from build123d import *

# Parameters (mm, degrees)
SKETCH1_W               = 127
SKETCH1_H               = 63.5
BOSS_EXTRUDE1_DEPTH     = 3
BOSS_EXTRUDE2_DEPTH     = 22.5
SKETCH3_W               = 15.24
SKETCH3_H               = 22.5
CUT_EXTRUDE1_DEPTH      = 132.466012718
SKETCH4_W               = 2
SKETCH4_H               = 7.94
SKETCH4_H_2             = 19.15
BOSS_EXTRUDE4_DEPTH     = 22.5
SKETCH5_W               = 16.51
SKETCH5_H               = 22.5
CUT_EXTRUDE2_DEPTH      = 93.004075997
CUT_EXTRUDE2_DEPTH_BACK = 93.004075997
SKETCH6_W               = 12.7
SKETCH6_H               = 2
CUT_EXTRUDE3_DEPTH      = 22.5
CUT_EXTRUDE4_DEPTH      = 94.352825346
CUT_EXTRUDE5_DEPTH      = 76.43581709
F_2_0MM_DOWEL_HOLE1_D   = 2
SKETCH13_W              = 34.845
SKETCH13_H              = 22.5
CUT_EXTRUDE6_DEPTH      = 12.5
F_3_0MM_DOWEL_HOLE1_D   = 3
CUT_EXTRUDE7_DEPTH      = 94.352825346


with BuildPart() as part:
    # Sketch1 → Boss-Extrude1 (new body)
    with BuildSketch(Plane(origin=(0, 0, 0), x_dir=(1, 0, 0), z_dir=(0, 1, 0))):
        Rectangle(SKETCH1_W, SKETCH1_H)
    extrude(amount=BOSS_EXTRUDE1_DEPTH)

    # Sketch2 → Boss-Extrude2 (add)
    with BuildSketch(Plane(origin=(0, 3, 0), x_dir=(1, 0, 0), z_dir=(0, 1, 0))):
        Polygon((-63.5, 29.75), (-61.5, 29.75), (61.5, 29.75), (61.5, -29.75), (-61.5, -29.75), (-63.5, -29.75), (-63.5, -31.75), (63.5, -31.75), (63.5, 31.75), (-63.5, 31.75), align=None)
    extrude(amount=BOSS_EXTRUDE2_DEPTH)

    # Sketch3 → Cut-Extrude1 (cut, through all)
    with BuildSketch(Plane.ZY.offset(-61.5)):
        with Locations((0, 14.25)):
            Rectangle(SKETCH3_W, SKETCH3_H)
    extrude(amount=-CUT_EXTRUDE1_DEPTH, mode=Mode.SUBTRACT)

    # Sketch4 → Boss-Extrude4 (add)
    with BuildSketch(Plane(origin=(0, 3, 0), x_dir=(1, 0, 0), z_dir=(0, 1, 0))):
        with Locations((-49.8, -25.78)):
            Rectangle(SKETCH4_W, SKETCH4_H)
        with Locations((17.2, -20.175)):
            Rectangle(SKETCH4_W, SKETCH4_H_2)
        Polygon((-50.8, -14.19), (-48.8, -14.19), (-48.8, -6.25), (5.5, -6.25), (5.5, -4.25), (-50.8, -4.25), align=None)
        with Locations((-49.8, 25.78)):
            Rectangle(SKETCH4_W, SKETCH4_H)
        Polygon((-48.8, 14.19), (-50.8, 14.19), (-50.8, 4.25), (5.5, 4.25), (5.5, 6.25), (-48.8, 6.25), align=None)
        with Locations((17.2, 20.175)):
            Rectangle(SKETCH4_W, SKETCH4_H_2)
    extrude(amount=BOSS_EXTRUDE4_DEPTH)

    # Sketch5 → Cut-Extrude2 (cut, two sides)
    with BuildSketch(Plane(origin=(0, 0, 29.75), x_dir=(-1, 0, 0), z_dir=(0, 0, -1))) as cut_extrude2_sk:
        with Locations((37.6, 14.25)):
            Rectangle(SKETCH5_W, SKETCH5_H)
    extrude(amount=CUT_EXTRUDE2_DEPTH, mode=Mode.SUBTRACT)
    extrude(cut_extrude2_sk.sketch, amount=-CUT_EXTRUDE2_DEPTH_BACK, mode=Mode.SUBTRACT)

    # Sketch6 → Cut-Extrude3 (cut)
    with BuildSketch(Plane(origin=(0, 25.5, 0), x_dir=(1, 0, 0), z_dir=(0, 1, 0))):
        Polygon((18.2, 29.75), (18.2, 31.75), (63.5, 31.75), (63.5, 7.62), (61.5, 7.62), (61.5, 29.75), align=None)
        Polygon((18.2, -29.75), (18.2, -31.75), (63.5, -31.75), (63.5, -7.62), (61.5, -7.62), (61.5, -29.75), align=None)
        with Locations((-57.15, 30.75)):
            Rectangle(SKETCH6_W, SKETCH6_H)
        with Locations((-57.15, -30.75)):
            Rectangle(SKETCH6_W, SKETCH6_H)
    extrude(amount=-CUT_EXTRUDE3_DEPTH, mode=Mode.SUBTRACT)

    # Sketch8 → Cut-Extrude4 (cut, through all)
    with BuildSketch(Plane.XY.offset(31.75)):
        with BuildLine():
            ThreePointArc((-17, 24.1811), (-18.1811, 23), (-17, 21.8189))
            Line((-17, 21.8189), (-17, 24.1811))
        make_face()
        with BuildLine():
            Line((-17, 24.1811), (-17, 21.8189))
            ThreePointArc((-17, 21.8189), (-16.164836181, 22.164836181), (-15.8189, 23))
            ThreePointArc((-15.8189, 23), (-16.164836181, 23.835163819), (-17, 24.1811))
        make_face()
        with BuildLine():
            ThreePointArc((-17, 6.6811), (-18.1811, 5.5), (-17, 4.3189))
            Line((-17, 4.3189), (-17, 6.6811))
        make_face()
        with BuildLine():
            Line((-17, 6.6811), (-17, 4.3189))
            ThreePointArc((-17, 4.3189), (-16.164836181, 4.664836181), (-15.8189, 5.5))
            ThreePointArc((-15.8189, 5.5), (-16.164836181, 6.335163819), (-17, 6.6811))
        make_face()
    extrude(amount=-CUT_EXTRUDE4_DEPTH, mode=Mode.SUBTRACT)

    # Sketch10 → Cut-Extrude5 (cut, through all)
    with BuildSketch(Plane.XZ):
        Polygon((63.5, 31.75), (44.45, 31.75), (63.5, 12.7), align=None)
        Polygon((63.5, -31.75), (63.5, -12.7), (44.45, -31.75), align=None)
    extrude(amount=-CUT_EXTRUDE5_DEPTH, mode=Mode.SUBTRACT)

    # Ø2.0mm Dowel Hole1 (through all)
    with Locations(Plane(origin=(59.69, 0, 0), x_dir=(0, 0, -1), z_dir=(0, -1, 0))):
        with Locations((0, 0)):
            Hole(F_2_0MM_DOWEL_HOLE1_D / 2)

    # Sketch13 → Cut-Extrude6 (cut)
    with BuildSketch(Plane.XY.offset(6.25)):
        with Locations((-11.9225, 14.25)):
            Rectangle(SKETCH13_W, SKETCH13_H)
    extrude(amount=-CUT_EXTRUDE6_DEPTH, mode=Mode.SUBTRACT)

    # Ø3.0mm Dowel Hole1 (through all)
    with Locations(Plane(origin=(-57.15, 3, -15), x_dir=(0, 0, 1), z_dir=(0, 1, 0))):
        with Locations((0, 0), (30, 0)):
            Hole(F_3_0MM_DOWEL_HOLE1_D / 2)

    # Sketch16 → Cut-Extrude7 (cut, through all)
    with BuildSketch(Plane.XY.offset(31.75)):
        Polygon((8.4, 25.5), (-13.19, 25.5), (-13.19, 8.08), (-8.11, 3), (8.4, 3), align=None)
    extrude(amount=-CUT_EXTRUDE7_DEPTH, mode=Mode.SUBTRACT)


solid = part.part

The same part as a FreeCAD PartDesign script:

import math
import FreeCAD as App
import Part
import Sketcher

V = App.Vector
Q = App.Units.Quantity


def add_polygon(sketch, points):
    """Adds a closed chain of lines whose ends are joined by coincident constraints."""
    first, n = sketch.GeometryCount, len(points)
    for a, b in zip(points, points[1:] + points[:1]):
        sketch.addGeometry(Part.LineSegment(App.Vector(*a, 0), App.Vector(*b, 0)), False)
    for i in range(n):
        sketch.addConstraint(Sketcher.Constraint("Coincident", first + i, 2, first + (i + 1) % n, 1))

doc = App.newDocument("Part")
body = doc.addObject("PartDesign::Body", "Body")

sketch1 = doc.addObject("Sketcher::SketchObject", "Sketch")
body.addObject(sketch1)
sketch1.AttachmentSupport = (doc.XZ_Plane, [""])
sketch1.MapMode = "FlatFace"
add_polygon(sketch1, [(-64, -32), (-64, 32), (64, 32), (64, -32)])
sketch1.addConstraint(Sketcher.Constraint("Vertical", 0))
sketch1.addConstraint(Sketcher.Constraint("Horizontal", 1))
sketch1.addConstraint(Sketcher.Constraint("Vertical", 2))
sketch1.addConstraint(Sketcher.Constraint("Horizontal", 3))
sketch1.addConstraint(Sketcher.Constraint("Symmetric", 0, 2, 2, 2, -1, 1))
sketch1.addConstraint(Sketcher.Constraint("DistanceX", 1, 1, 1, 2, Q("127 mm")))
sketch1.addConstraint(Sketcher.Constraint("DistanceY", 0, 1, 0, 2, Q("63.5 mm")))
pad1 = doc.addObject("PartDesign::Pad", "Pad")
body.addObject(pad1)
pad1.Profile = sketch1
pad1.Length = 3
pad1.Reversed = True

sketch2 = doc.addObject("Sketcher::SketchObject", "Sketch001")
body.addObject(sketch2)
sketch2.AttachmentSupport = (doc.XZ_Plane, [""])
sketch2.MapMode = "FlatFace"
sketch2.AttachmentOffset = App.Placement(V(0, 0, -3), App.Rotation())
add_polygon(sketch2, [(-63.5, -29.8), (61.5, -29.8), (61.5, 29.8), (-63.5, 29.8), (-63.5, 31.8), (63.5, 31.8), (63.5, -31.8), (-63.5, -31.8)])
sketch2.addConstraint(Sketcher.Constraint("Horizontal", 0))
sketch2.addConstraint(Sketcher.Constraint("Vertical", 1))
sketch2.addConstraint(Sketcher.Constraint("Horizontal", 2))
sketch2.addConstraint(Sketcher.Constraint("Vertical", 3))
sketch2.addConstraint(Sketcher.Constraint("Horizontal", 4))
sketch2.addConstraint(Sketcher.Constraint("Vertical", 5))
sketch2.addConstraint(Sketcher.Constraint("Horizontal", 6))
sketch2.addConstraint(Sketcher.Constraint("Vertical", 7))
sketch2.addConstraint(Sketcher.Constraint("Symmetric", 3, 2, 5, 2, -1, 1))
sketch2.addConstraint(Sketcher.Constraint("Symmetric", 2, 2, 7, 2, -1))
sketch2.addConstraint(Sketcher.Constraint("DistanceX", 0, 1, 0, 2, Q("125 mm")))
sketch2.addConstraint(Sketcher.Constraint("DistanceX", 4, 1, 4, 2, Q("127 mm")))
sketch2.addConstraint(Sketcher.Constraint("DistanceY", 3, 1, 3, 2, Q("2 mm")))
sketch2.addConstraint(Sketcher.Constraint("DistanceY", 1, 1, 1, 2, Q("59.5 mm")))
pad2 = doc.addObject("PartDesign::Pad", "Pad001")
body.addObject(pad2)
pad2.Profile = sketch2
pad2.Length = 22.5
pad2.Reversed = True

sketch3 = doc.addObject("Sketcher::SketchObject", "Sketch002")
body.addObject(sketch3)
sketch3.AttachmentSupport = (doc.YZ_Plane, [""])
sketch3.MapMode = "FlatFace"
sketch3.AttachmentOffset = App.Placement(V(0, 0, 61.5), App.Rotation())
add_polygon(sketch3, [(26, -8), (3, -8), (3, 8), (26, 8)])
sketch3.addConstraint(Sketcher.Constraint("Horizontal", 0))
sketch3.addConstraint(Sketcher.Constraint("Vertical", 1))
sketch3.addConstraint(Sketcher.Constraint("Horizontal", 2))
sketch3.addConstraint(Sketcher.Constraint("Vertical", 3))
sketch3.addConstraint(Sketcher.Constraint("DistanceX", 0, 2, 0, 1, Q("22.5 mm")))
sketch3.addConstraint(Sketcher.Constraint("DistanceX", -1, 1, 0, 2, Q("3 mm")))
sketch3.addConstraint(Sketcher.Constraint("DistanceY", 1, 1, 1, 2, Q("15.24 mm")))
sketch3.addConstraint(Sketcher.Constraint("DistanceY", 0, 2, -1, 1, Q("7.62 mm")))
pocket1 = doc.addObject("PartDesign::Pocket", "Pocket")
body.addObject(pocket1)
pocket1.Profile = sketch3
pocket1.Type = "ThroughAll"
pocket1.Reversed = True

sketch4 = doc.addObject("Sketcher::SketchObject", "Sketch003")
body.addObject(sketch4)
sketch4.AttachmentSupport = (doc.XZ_Plane, [""])
sketch4.MapMode = "FlatFace"
sketch4.AttachmentOffset = App.Placement(V(0, 0, -3), App.Rotation())
add_polygon(sketch4, [(-50.8, 21.8), (-50.8, 29.8), (-48.8, 29.8), (-48.8, 21.8)])
add_polygon(sketch4, [(16.2, 10.6), (16.2, 29.8), (18.2, 29.8), (18.2, 10.6)])
add_polygon(sketch4, [(-50.8, 14.2), (-48.8, 14.2), (-48.8, 6.2), (5.5, 6.2), (5.5, 4.2), (-50.8, 4.2)])
add_polygon(sketch4, [(-50.8, -29.8), (-50.8, -21.8), (-48.8, -21.8), (-48.8, -29.8)])
add_polygon(sketch4, [(-48.8, -14.2), (-50.8, -14.2), (-50.8, -4.2), (5.5, -4.2), (5.5, -6.2), (-48.8, -6.2)])
add_polygon(sketch4, [(16.2, -29.8), (16.2, -10.6), (18.2, -10.6), (18.2, -29.8)])
sketch4.addConstraint(Sketcher.Constraint("Vertical", 0))
sketch4.addConstraint(Sketcher.Constraint("Horizontal", 1))
sketch4.addConstraint(Sketcher.Constraint("Vertical", 2))
sketch4.addConstraint(Sketcher.Constraint("Horizontal", 3))
sketch4.addConstraint(Sketcher.Constraint("Vertical", 4))
sketch4.addConstraint(Sketcher.Constraint("Horizontal", 5))
sketch4.addConstraint(Sketcher.Constraint("Vertical", 6))
sketch4.addConstraint(Sketcher.Constraint("Horizontal", 7))
sketch4.addConstraint(Sketcher.Constraint("Horizontal", 8))
sketch4.addConstraint(Sketcher.Constraint("Vertical", 9))
sketch4.addConstraint(Sketcher.Constraint("Horizontal", 10))
sketch4.addConstraint(Sketcher.Constraint("Vertical", 11))
sketch4.addConstraint(Sketcher.Constraint("Horizontal", 12))
sketch4.addConstraint(Sketcher.Constraint("Vertical", 13))
sketch4.addConstraint(Sketcher.Constraint("Vertical", 14))
sketch4.addConstraint(Sketcher.Constraint("Horizontal", 15))
sketch4.addConstraint(Sketcher.Constraint("Vertical", 16))
sketch4.addConstraint(Sketcher.Constraint("Horizontal", 17))
sketch4.addConstraint(Sketcher.Constraint("Horizontal", 18))
sketch4.addConstraint(Sketcher.Constraint("Vertical", 19))
sketch4.addConstraint(Sketcher.Constraint("Horizontal", 20))
sketch4.addConstraint(Sketcher.Constraint("Vertical", 21))
sketch4.addConstraint(Sketcher.Constraint("Horizontal", 22))
sketch4.addConstraint(Sketcher.Constraint("Vertical", 23))
sketch4.addConstraint(Sketcher.Constraint("Vertical", 24))
sketch4.addConstraint(Sketcher.Constraint("Horizontal", 25))
sketch4.addConstraint(Sketcher.Constraint("Vertical", 26))
sketch4.addConstraint(Sketcher.Constraint("Horizontal", 27))
sketch4.addConstraint(Sketcher.Constraint("Symmetric", 3, 2, 14, 2, -1))
sketch4.addConstraint(Sketcher.Constraint("Symmetric", 1, 2, 16, 2, -1))
sketch4.addConstraint(Sketcher.Constraint("Symmetric", 13, 2, 18, 2, -1))
sketch4.addConstraint(Sketcher.Constraint("Symmetric", 11, 2, 20, 2, -1))
sketch4.addConstraint(Sketcher.Constraint("Symmetric", 9, 2, 22, 2, -1))
sketch4.addConstraint(Sketcher.Constraint("Symmetric", 7, 2, 24, 2, -1))
sketch4.addConstraint(Sketcher.Constraint("Symmetric", 5, 2, 26, 2, -1))
sketch4.addConstraint(Sketcher.Constraint("Horizontal", 1, 2, 4, 2))
sketch4.addConstraint(Sketcher.Constraint("Vertical", 2, 2, 8, 2))
sketch4.addConstraint(Sketcher.Constraint("Vertical", 3, 2, 12, 2))
sketch4.addConstraint(Sketcher.Constraint("Equal", 3, 5))
sketch4.addConstraint(Sketcher.Constraint("Equal", 2, 9))
sketch4.addConstraint(Sketcher.Constraint("Equal", 27, 11))
sketch4.addConstraint(Sketcher.Constraint("DistanceX", 1, 1, 1, 2, Q("2 mm")))
sketch4.addConstraint(Sketcher.Constraint("DistanceX", 10, 1, 10, 2, Q("54.3 mm")))
sketch4.addConstraint(Sketcher.Constraint("DistanceX", 1, 2, 4, 2, Q("65 mm")))
sketch4.addConstraint(Sketcher.Constraint("DistanceY", 14, 2, 13, 2, Q("36 mm")))
sketch4.addConstraint(Sketcher.Constraint("DistanceY", 0, 1, 0, 2, Q("7.94 mm")))
sketch4.addConstraint(Sketcher.Constraint("DistanceY", 4, 1, 4, 2, Q("19.15 mm")))
sketch4.addConstraint(Sketcher.Constraint("DistanceX", 0, 2, -1, 1, Q("50.8 mm")))
sketch4.addConstraint(Sketcher.Constraint("DistanceY", -1, 1, 6, 2, Q("10.6 mm")))
pad3 = doc.addObject("PartDesign::Pad", "Pad002")
body.addObject(pad3)
pad3.Profile = sketch4
pad3.Length = 22.5
pad3.Reversed = True

sketch5 = doc.addObject("Sketcher::SketchObject", "Sketch004")
body.addObject(sketch5)
sketch5.AttachmentSupport = (doc.XY_Plane, [""])
sketch5.MapMode = "FlatFace"
sketch5.AttachmentOffset = App.Placement(V(0, 0, 29.75), App.Rotation())
add_polygon(sketch5, [(-29, 26), (-29, 3), (-46, 3), (-46, 26)])
sketch5.addConstraint(Sketcher.Constraint("Vertical", 0))
sketch5.addConstraint(Sketcher.Constraint("Horizontal", 1))
sketch5.addConstraint(Sketcher.Constraint("Vertical", 2))
sketch5.addConstraint(Sketcher.Constraint("Horizontal", 3))
sketch5.addConstraint(Sketcher.Constraint("DistanceY", 0, 2, 0, 1, Q("22.5 mm")))
sketch5.addConstraint(Sketcher.Constraint("DistanceY", -1, 1, 0, 2, Q("3 mm")))
sketch5.addConstraint(Sketcher.Constraint("DistanceX", 1, 2, 1, 1, Q("16.51 mm")))
sketch5.addConstraint(Sketcher.Constraint("DistanceX", 0, 2, -1, 1, Q("29.345 mm")))
pocket2 = doc.addObject("PartDesign::Pocket", "Pocket001")
body.addObject(pocket2)
pocket2.Profile = sketch5
pocket2.Type = "ThroughAll"
pocket2.Midplane = True

sketch6 = doc.addObject("Sketcher::SketchObject", "Sketch005")
body.addObject(sketch6)
sketch6.AttachmentSupport = (doc.XZ_Plane, [""])
sketch6.MapMode = "FlatFace"
sketch6.AttachmentOffset = App.Placement(V(0, 0, -25.5), App.Rotation())
add_polygon(sketch6, [(18.2, -31.8), (18.2, -29.8), (61.5, -29.8), (61.5, -7.6), (63.5, -7.6), (63.5, -31.8)])
add_polygon(sketch6, [(18.2, 29.8), (18.2, 31.8), (63.5, 31.8), (63.5, 7.6), (61.5, 7.6), (61.5, 29.8)])
add_polygon(sketch6, [(-63.5, -31.8), (-63.5, -29.8), (-50.8, -29.8), (-50.8, -31.8)])
add_polygon(sketch6, [(-63.5, 29.8), (-63.5, 31.8), (-50.8, 31.8), (-50.8, 29.8)])
sketch6.addConstraint(Sketcher.Constraint("Vertical", 0))
sketch6.addConstraint(Sketcher.Constraint("Horizontal", 1))
sketch6.addConstraint(Sketcher.Constraint("Vertical", 2))
sketch6.addConstraint(Sketcher.Constraint("Horizontal", 3))
sketch6.addConstraint(Sketcher.Constraint("Vertical", 4))
sketch6.addConstraint(Sketcher.Constraint("Horizontal", 5))
sketch6.addConstraint(Sketcher.Constraint("Vertical", 6))
sketch6.addConstraint(Sketcher.Constraint("Horizontal", 7))
sketch6.addConstraint(Sketcher.Constraint("Vertical", 8))
sketch6.addConstraint(Sketcher.Constraint("Horizontal", 9))
sketch6.addConstraint(Sketcher.Constraint("Vertical", 10))
sketch6.addConstraint(Sketcher.Constraint("Horizontal", 11))
sketch6.addConstraint(Sketcher.Constraint("Vertical", 12))
sketch6.addConstraint(Sketcher.Constraint("Horizontal", 13))
sketch6.addConstraint(Sketcher.Constraint("Vertical", 14))
sketch6.addConstraint(Sketcher.Constraint("Horizontal", 15))
sketch6.addConstraint(Sketcher.Constraint("Vertical", 16))
sketch6.addConstraint(Sketcher.Constraint("Horizontal", 17))
sketch6.addConstraint(Sketcher.Constraint("Vertical", 18))
sketch6.addConstraint(Sketcher.Constraint("Horizontal", 19))
sketch6.addConstraint(Sketcher.Constraint("Symmetric", 7, 2, 15, 2, -1, 1))
sketch6.addConstraint(Sketcher.Constraint("Symmetric", 4, 2, 16, 2, -1, 1))
sketch6.addConstraint(Sketcher.Constraint("Symmetric", 4, 2, 15, 2, -2))
sketch6.addConstraint(Sketcher.Constraint("Symmetric", 2, 2, 9, 2, -1))
sketch6.addConstraint(Sketcher.Constraint("Symmetric", 0, 2, 11, 2, -1))
sketch6.addConstraint(Sketcher.Constraint("Symmetric", 13, 2, 18, 2, -1))
sketch6.addConstraint(Sketcher.Constraint("Horizontal", 1, 2, 12, 2))
sketch6.addConstraint(Sketcher.Constraint("Equal", 9, 0))
sketch6.addConstraint(Sketcher.Constraint("DistanceX", 3, 1, 3, 2, Q("2 mm")))
sketch6.addConstraint(Sketcher.Constraint("DistanceX", 1, 1, 1, 2, Q("43.3 mm")))
sketch6.addConstraint(Sketcher.Constraint("DistanceX", 13, 1, 13, 2, Q("12.7 mm")))
sketch6.addConstraint(Sketcher.Constraint("DistanceX", 12, 2, 1, 2, Q("125 mm")))
sketch6.addConstraint(Sketcher.Constraint("DistanceY", 2, 1, 2, 2, Q("22.13 mm")))
sketch6.addConstraint(Sketcher.Constraint("DistanceY", 0, 2, 6, 2, Q("61.5 mm")))
pocket3 = doc.addObject("PartDesign::Pocket", "Pocket002")
body.addObject(pocket3)
pocket3.Profile = sketch6
pocket3.Length = 22.5
pocket3.Reversed = True

sketch7 = doc.addObject("Sketcher::SketchObject", "Sketch006")
body.addObject(sketch7)
sketch7.AttachmentSupport = (doc.XY_Plane, [""])
sketch7.MapMode = "FlatFace"
sketch7.AttachmentOffset = App.Placement(V(0, 0, 31.75), App.Rotation())
sketch7.addGeometry(Part.ArcOfCircle(Part.Circle(V(-17, 23, 0), V(0, 0, 1), 1.2), math.radians(90), math.radians(270)), False)
sketch7.addGeometry(Part.ArcOfCircle(Part.Circle(V(-17, 23, 0), V(0, 0, 1), 1.2), math.radians(-90), math.radians(0)), False)
sketch7.addGeometry(Part.ArcOfCircle(Part.Circle(V(-17, 23, 0), V(0, 0, 1), 1.2), math.radians(0), math.radians(90)), False)
sketch7.addGeometry(Part.ArcOfCircle(Part.Circle(V(-17, 5.5, 0), V(0, 0, 1), 1.2), math.radians(90), math.radians(270)), False)
sketch7.addGeometry(Part.ArcOfCircle(Part.Circle(V(-17, 5.5, 0), V(0, 0, 1), 1.2), math.radians(-90), math.radians(0)), False)
sketch7.addGeometry(Part.ArcOfCircle(Part.Circle(V(-17, 5.5, 0), V(0, 0, 1), 1.2), math.radians(0), math.radians(90)), False)
sketch7.addConstraint(Sketcher.Constraint("Tangent", 0, 2, 1, 1))
sketch7.addConstraint(Sketcher.Constraint("Tangent", 1, 2, 2, 1))
sketch7.addConstraint(Sketcher.Constraint("Tangent", 2, 2, 0, 1))
sketch7.addConstraint(Sketcher.Constraint("Tangent", 3, 2, 4, 1))
sketch7.addConstraint(Sketcher.Constraint("Tangent", 4, 2, 5, 1))
sketch7.addConstraint(Sketcher.Constraint("Tangent", 5, 2, 3, 1))
sketch7.addConstraint(Sketcher.Constraint("Equal", 2, 3))
sketch7.addConstraint(Sketcher.Constraint("Horizontal", 2, 3, 1, 2))
sketch7.addConstraint(Sketcher.Constraint("Horizontal", 5, 3, 4, 2))
sketch7.addConstraint(Sketcher.Constraint("Vertical", 2, 3, 3, 3))
sketch7.addConstraint(Sketcher.Constraint("Vertical", 5, 3, 0, 2))
sketch7.addConstraint(Sketcher.Constraint("Vertical", 0, 2, 2, 2))
sketch7.addConstraint(Sketcher.Constraint("Vertical", 2, 2, 3, 2))
sketch7.addConstraint(Sketcher.Constraint("Vertical", 3, 2, 5, 2))
sketch7.addConstraint(Sketcher.Constraint("DistanceX", 0, 3, -1, 1, Q("17 mm")))
sketch7.addConstraint(Sketcher.Constraint("DistanceY", -1, 1, 0, 3, Q("23 mm")))
sketch7.addConstraint(Sketcher.Constraint("DistanceY", -1, 1, 3, 3, Q("5.5 mm")))
sketch7.addConstraint(Sketcher.Constraint("Radius", 0, Q("1.1811 mm")))
pocket4 = doc.addObject("PartDesign::Pocket", "Pocket003")
body.addObject(pocket4)
pocket4.Profile = sketch7
pocket4.Type = "ThroughAll"

sketch8 = doc.addObject("Sketcher::SketchObject", "Sketch007")
body.addObject(sketch8)
sketch8.AttachmentSupport = (doc.XZ_Plane, [""])
sketch8.MapMode = "FlatFace"
add_polygon(sketch8, [(64, 32), (44, 32), (64, 13)])
add_polygon(sketch8, [(64, -32), (64, -13), (44, -32)])
sketch8.addConstraint(Sketcher.Constraint("Horizontal", 0))
sketch8.addConstraint(Sketcher.Constraint("Vertical", 2))
sketch8.addConstraint(Sketcher.Constraint("Vertical", 3))
sketch8.addConstraint(Sketcher.Constraint("Horizontal", 5))
sketch8.addConstraint(Sketcher.Constraint("Symmetric", 1, 2, 3, 2, -1))
sketch8.addConstraint(Sketcher.Constraint("Symmetric", 0, 2, 4, 2, -1))
sketch8.addConstraint(Sketcher.Constraint("Perpendicular", 1, 4))
sketch8.addConstraint(Sketcher.Constraint("DistanceX", 0, 2, 0, 1, Q("19.05 mm")))
sketch8.addConstraint(Sketcher.Constraint("DistanceX", -1, 1, 1, 2, Q("63.5 mm")))
sketch8.addConstraint(Sketcher.Constraint("DistanceY", -1, 1, 1, 2, Q("12.7 mm")))
pocket5 = doc.addObject("PartDesign::Pocket", "Pocket004")
body.addObject(pocket5)
pocket5.Profile = sketch8
pocket5.Type = "ThroughAll"

sketch9 = doc.addObject("Sketcher::SketchObject", "Sketch008")
body.addObject(sketch9)
sketch9.AttachmentSupport = (doc.XZ_Plane, [""])
sketch9.MapMode = "FlatFace"
sketch9.addGeometry(Part.Circle(V(59.7, 0, 0), V(0, 0, 1), 1), False)
sketch9.addConstraint(Sketcher.Constraint("PointOnObject", 0, 3, -1))
sketch9.addConstraint(Sketcher.Constraint("Diameter", 0, Q("2 mm")))
sketch9.addConstraint(Sketcher.Constraint("DistanceX", -1, 1, 0, 3, Q("59.69 mm")))
doc.recompute()
hole = doc.addObject("PartDesign::Hole", "Hole")
body.addObject(hole)
hole.Profile = sketch9
hole.ThreadType = "None"
hole.Diameter = 2
hole.DepthType = "ThroughAll"

sketch10 = doc.addObject("Sketcher::SketchObject", "Sketch009")
body.addObject(sketch10)
sketch10.AttachmentSupport = (doc.XY_Plane, [""])
sketch10.MapMode = "FlatFace"
sketch10.AttachmentOffset = App.Placement(V(0, 0, 6.25), App.Rotation())
add_polygon(sketch10, [(-29, 26), (-29, 3), (6, 3), (6, 26)])
sketch10.addConstraint(Sketcher.Constraint("Vertical", 0))
sketch10.addConstraint(Sketcher.Constraint("Horizontal", 1))
sketch10.addConstraint(Sketcher.Constraint("Vertical", 2))
sketch10.addConstraint(Sketcher.Constraint("Horizontal", 3))
sketch10.addConstraint(Sketcher.Constraint("DistanceY", 0, 2, 0, 1, Q("22.5 mm")))
sketch10.addConstraint(Sketcher.Constraint("DistanceY", -1, 1, 0, 2, Q("3 mm")))
sketch10.addConstraint(Sketcher.Constraint("DistanceX", -1, 1, 1, 2, Q("5.5 mm")))
sketch10.addConstraint(Sketcher.Constraint("DistanceX", 1, 1, 1, 2, Q("34.845 mm")))
pocket6 = doc.addObject("PartDesign::Pocket", "Pocket005")
body.addObject(pocket6)
pocket6.Profile = sketch10
pocket6.Length = 12.5

sketch11 = doc.addObject("Sketcher::SketchObject", "Sketch010")
body.addObject(sketch11)
sketch11.AttachmentSupport = (doc.XZ_Plane, [""])
sketch11.MapMode = "FlatFace"
sketch11.AttachmentOffset = App.Placement(V(0, 0, -3), App.Rotation())
sketch11.addGeometry(Part.Circle(V(-57.1, -15, 0), V(0, 0, 1), 1.5), False)
sketch11.addGeometry(Part.Circle(V(-57.1, 15, 0), V(0, 0, 1), 1.5), False)
sketch11.addConstraint(Sketcher.Constraint("Equal", 0, 1))
sketch11.addConstraint(Sketcher.Constraint("Symmetric", 0, 3, 1, 3, -1))
sketch11.addConstraint(Sketcher.Constraint("Diameter", 0, Q("3 mm")))
sketch11.addConstraint(Sketcher.Constraint("DistanceY", 0, 3, -1, 1, Q("15 mm")))
sketch11.addConstraint(Sketcher.Constraint("DistanceX", 0, 3, -1, 1, Q("57.15 mm")))
doc.recompute()
hole2 = doc.addObject("PartDesign::Hole", "Hole001")
body.addObject(hole2)
hole2.Profile = sketch11
hole2.ThreadType = "None"
hole2.Diameter = 3
hole2.DepthType = "ThroughAll"
hole2.Reversed = True

sketch12 = doc.addObject("Sketcher::SketchObject", "Sketch011")
body.addObject(sketch12)
sketch12.AttachmentSupport = (doc.XY_Plane, [""])
sketch12.MapMode = "FlatFace"
sketch12.AttachmentOffset = App.Placement(V(0, 0, 31.75), App.Rotation())
add_polygon(sketch12, [(8, 26), (-13, 26), (-13, 8), (-8, 3), (8, 3)])
sketch12.addConstraint(Sketcher.Constraint("Horizontal", 0))
sketch12.addConstraint(Sketcher.Constraint("Vertical", 1))
sketch12.addConstraint(Sketcher.Constraint("Horizontal", 3))
sketch12.addConstraint(Sketcher.Constraint("Vertical", 4))
sketch12.addConstraint(Sketcher.Constraint("Angle", 2, Q("-45 deg")))
sketch12.addConstraint(Sketcher.Constraint("DistanceY", 4, 1, 4, 2, Q("22.5 mm")))
sketch12.addConstraint(Sketcher.Constraint("DistanceY", -1, 1, 2, 2, Q("3 mm")))
sketch12.addConstraint(Sketcher.Constraint("DistanceX", 0, 2, 0, 1, Q("21.59 mm")))
sketch12.addConstraint(Sketcher.Constraint("DistanceX", 3, 1, 3, 2, Q("16.51 mm")))
sketch12.addConstraint(Sketcher.Constraint("DistanceX", -1, 1, 3, 2, Q("8.4 mm")))
pocket7 = doc.addObject("PartDesign::Pocket", "Pocket006")
body.addObject(pocket7)
pocket7.Profile = sketch12
pocket7.Type = "ThroughAll"

doc.recompute()
